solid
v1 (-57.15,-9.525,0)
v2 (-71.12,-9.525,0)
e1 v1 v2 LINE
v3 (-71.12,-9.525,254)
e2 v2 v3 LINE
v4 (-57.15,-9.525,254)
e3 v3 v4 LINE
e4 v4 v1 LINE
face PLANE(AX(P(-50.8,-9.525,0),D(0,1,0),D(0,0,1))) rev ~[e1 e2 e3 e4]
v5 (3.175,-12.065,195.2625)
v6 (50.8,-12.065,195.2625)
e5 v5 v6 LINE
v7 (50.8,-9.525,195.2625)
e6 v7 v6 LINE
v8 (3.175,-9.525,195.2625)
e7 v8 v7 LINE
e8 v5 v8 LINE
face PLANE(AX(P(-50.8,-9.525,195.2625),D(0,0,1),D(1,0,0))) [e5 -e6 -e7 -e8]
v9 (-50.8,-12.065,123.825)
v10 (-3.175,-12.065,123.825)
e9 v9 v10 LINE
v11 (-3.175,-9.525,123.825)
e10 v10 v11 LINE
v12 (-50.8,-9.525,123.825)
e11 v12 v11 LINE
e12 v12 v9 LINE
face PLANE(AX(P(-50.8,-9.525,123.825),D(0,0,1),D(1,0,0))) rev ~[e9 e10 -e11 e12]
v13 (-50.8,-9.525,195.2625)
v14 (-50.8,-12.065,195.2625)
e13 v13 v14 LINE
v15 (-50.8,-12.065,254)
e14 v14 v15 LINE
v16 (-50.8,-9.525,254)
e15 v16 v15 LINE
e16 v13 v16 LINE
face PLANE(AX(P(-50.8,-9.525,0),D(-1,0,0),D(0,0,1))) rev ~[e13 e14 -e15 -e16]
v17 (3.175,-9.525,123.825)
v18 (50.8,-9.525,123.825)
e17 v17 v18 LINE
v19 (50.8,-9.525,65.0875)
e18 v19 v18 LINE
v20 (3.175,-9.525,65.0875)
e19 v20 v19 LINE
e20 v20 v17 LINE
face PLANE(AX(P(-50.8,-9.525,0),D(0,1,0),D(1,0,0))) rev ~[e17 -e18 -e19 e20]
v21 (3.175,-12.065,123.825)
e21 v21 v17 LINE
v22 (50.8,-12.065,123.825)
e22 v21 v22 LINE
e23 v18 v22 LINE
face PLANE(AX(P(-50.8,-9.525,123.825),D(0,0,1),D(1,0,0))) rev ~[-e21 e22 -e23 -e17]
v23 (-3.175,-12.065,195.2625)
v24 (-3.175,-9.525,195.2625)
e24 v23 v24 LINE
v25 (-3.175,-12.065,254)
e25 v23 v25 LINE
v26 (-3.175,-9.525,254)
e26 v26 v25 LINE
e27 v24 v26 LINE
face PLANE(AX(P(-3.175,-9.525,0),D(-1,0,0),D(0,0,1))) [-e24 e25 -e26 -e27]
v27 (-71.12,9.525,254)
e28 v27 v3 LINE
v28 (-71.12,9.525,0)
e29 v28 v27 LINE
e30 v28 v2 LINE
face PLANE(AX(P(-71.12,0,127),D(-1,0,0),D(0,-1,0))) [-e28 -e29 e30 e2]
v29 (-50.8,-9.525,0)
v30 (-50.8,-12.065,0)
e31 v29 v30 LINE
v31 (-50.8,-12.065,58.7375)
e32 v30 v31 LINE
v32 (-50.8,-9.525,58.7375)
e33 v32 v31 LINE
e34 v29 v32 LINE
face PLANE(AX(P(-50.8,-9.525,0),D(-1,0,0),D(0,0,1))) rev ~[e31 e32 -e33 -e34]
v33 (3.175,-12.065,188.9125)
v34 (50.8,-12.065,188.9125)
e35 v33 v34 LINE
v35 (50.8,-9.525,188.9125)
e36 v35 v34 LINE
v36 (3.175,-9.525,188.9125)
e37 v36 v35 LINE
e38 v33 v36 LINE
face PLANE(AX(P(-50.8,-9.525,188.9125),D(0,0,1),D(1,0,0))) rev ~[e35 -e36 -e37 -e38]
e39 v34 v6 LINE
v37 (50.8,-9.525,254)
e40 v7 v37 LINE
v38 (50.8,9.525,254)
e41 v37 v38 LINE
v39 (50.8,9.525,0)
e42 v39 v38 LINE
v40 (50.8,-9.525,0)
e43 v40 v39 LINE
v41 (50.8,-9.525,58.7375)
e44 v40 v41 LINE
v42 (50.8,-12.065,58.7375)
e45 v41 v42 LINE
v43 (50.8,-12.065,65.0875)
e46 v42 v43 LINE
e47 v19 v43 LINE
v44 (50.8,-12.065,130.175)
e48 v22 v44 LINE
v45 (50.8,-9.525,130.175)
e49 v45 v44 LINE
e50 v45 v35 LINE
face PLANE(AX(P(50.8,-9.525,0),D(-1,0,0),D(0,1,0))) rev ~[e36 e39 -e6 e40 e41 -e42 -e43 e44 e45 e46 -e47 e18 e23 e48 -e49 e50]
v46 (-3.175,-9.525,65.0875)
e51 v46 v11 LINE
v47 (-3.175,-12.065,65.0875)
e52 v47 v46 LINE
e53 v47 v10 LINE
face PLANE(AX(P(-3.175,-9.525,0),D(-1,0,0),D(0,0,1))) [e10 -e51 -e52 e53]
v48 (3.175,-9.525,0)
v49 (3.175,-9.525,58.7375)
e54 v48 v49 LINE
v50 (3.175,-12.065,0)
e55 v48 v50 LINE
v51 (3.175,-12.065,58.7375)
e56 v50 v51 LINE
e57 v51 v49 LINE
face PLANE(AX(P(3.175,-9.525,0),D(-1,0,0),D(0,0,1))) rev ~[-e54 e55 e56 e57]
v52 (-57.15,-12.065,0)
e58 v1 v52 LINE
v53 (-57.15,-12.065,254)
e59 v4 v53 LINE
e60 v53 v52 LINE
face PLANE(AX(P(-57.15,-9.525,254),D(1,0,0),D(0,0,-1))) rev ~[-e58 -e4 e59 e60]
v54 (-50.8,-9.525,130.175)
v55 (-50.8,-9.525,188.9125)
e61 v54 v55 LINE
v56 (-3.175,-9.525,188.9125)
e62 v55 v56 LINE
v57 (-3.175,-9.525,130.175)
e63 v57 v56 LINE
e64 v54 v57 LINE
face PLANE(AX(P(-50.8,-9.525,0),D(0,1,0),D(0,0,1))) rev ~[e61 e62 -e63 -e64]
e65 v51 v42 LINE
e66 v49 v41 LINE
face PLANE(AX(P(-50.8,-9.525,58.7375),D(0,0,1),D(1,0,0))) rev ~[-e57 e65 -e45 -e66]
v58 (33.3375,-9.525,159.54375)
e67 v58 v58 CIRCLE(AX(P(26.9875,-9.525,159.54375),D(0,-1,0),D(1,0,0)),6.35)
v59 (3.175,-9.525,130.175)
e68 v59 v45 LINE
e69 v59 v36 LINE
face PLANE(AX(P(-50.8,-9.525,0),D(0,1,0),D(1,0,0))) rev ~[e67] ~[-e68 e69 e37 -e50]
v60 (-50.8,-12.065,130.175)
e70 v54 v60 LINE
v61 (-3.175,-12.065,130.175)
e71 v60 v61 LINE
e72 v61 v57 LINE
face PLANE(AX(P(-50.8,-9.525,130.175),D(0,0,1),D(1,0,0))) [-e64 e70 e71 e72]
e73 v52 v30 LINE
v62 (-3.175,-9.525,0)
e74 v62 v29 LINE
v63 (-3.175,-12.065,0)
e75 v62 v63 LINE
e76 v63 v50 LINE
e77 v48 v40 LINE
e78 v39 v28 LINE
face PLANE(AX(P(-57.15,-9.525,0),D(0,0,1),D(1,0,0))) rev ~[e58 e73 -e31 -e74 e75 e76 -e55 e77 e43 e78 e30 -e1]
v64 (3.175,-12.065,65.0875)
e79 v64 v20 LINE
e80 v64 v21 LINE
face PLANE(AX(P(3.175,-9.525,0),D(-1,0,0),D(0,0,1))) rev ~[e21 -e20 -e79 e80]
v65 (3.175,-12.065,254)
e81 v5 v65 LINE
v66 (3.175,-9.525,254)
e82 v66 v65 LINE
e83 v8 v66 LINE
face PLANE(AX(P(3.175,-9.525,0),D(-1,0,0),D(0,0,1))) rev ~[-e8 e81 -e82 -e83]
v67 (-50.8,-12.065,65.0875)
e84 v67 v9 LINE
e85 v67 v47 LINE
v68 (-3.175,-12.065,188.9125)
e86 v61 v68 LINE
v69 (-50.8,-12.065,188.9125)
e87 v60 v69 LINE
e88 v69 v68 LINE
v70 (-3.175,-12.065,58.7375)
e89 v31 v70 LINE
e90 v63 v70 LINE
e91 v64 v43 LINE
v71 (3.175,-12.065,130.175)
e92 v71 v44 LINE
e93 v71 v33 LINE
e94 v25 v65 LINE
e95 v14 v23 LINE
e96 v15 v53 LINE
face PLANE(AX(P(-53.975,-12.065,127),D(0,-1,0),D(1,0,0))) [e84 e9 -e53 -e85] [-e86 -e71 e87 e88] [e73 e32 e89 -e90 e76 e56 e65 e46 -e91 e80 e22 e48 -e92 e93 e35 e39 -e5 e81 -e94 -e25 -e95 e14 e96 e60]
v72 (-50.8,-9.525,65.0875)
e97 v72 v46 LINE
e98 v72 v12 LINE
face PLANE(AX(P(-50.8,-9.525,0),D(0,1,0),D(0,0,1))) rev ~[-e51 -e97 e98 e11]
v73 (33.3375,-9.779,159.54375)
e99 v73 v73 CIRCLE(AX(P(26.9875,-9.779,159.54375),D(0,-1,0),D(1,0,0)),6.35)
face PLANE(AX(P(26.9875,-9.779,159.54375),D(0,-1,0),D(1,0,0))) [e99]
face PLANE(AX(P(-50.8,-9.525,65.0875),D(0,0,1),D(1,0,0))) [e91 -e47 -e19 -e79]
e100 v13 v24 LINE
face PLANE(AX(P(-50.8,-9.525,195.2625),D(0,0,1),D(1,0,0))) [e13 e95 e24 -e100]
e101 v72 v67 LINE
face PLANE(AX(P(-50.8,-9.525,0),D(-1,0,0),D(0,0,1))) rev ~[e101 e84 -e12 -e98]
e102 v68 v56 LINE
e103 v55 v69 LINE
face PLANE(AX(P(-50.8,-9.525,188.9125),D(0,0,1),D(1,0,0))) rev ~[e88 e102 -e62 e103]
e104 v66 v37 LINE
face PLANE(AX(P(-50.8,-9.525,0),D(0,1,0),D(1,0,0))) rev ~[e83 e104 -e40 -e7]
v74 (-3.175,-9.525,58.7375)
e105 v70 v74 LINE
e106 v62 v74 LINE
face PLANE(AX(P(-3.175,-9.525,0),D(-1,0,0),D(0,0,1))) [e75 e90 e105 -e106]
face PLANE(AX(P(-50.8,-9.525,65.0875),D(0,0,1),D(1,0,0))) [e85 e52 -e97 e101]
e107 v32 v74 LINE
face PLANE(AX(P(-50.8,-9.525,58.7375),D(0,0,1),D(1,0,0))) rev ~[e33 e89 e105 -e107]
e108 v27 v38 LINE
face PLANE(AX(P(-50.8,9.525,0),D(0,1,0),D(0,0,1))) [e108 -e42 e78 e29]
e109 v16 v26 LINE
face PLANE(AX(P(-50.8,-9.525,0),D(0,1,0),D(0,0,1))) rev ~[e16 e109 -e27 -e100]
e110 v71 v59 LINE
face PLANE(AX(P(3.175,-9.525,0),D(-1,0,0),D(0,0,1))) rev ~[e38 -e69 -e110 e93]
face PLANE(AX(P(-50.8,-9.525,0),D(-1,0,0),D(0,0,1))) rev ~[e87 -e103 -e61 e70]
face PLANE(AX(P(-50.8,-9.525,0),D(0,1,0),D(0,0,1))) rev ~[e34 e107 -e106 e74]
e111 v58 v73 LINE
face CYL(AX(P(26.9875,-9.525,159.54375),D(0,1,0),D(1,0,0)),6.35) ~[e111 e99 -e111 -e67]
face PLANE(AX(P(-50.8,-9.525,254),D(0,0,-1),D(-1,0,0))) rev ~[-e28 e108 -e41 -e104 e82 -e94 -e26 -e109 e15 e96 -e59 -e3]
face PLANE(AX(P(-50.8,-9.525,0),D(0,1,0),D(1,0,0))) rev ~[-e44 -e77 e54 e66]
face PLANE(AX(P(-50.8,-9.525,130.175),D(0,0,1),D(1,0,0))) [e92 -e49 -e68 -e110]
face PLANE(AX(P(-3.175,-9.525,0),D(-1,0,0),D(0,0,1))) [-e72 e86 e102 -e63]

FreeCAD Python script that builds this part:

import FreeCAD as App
import Part
import Sketcher
from FreeCAD import Vector
Q = App.Units.Quantity

doc = App.newDocument("Part")
params = doc.addObject("Spreadsheet::Sheet", "Params")
for row, (alias, value) in enumerate([
    ("sketch1_width", "4 in"),
    ("sketch1_height", "0.75 in"),
    ("pad1_length", "10 in"),
    ("sketch2_height", "10 in"),
    ("sketch2_width", "0.25 in"),
    ("pad2_length", "0.1 in"),
    ("sketch3_width", "4 in"),
    ("sketch3_height", "0.25 in"),
    ("pad3_length", "0.1 in"),
    ("sketch4_width", "4 in"),
    ("sketch4_height", "0.25 in"),
    ("pad4_length", "0.1 in"),
    ("sketch5_width", "4 in"),
    ("sketch5_height", "0.25 in"),
    ("pad5_length", "0.1 in"),
    ("sketch6_diameter", "0.5 in"),
    ("pad6_length", "0.01 in"),
    ("sketch7_height", "10 in"),
    ("sketch7_width", "0.75 in"),
    ("pad7_length", "0.8 in"),
    ("sketch8_height", "10 in"),
    ("sketch8_width", "0.25 in"),
    ("pad8_length", "0.1 in"),
], start=1):
    params.set(f"A{row}", alias)
    params.set(f"B{row}", "=" + value)
    params.setAlias(f"B{row}", alias)

body = doc.addObject("PartDesign::Body", "Body")

# Sketch on XY plane
sketch1 = doc.addObject("Sketcher::SketchObject", "Sketch")
body.addObject(sketch1)
sketch1.AttachmentSupport = (doc.XY_Plane, [""])
sketch1.MapMode = "FlatFace"
sketch1.addGeometry([
    Part.LineSegment(Vector(-51, 10, 0), Vector(-51, -10, 0)),
    Part.LineSegment(Vector(-51, -10, 0), Vector(51, -10, 0)),
    Part.LineSegment(Vector(51, -10, 0), Vector(51, 10, 0)),
    Part.LineSegment(Vector(51, 10, 0), Vector(-51, 10, 0)),
], False)
sketch1.addConstraint([
    Sketcher.Constraint("Coincident", 0, 2, 1, 1),
    Sketcher.Constraint("Coincident", 1, 2, 2, 1),
    Sketcher.Constraint("Coincident", 2, 2, 3, 1),
    Sketcher.Constraint("Coincident", 3, 2, 0, 1),
    Sketcher.Constraint("Vertical", 0),
    Sketcher.Constraint("Horizontal", 1),
    Sketcher.Constraint("Vertical", 2),
    Sketcher.Constraint("Horizontal", 3),
    Sketcher.Constraint("Symmetric", 0, 2, 2, 2, -1, 1),
    Sketcher.Constraint("DistanceX", 1, 1, 1, 2, Q("4 in")),
    Sketcher.Constraint("DistanceY", 0, 2, 0, 1, Q("0.75 in")),
])
sketch1.setExpression("Constraints[9]", "Params.sketch1_width")
sketch1.setExpression("Constraints[10]", "Params.sketch1_height")
pad1 = doc.addObject("PartDesign::Pad", "Pad")
body.addObject(pad1)
pad1.Profile = sketch1
pad1.setExpression("Length", "Params.pad1_length")

# Sketch on XZ plane
sketch2 = doc.addObject("Sketcher::SketchObject", "Sketch001")
body.addObject(sketch2)
sketch2.AttachmentSupport = (doc.XZ_Plane, [""])
sketch2.MapMode = "FlatFace"
sketch2.AttachmentOffset = App.Placement(Vector(0, 0, 0.375 * 25.4), App.Rotation())
sketch2.addGeometry([
    Part.LineSegment(Vector(-3, 254, 0), Vector(-3, 0, 0)),
    Part.LineSegment(Vector(-3, 0, 0), Vector(3, 0, 0)),
    Part.LineSegment(Vector(3, 0, 0), Vector(3, 254, 0)),
    Part.LineSegment(Vector(3, 254, 0), Vector(-3, 254, 0)),
], False)
sketch2.addConstraint([
    Sketcher.Constraint("Coincident", 0, 2, 1, 1),
    Sketcher.Constraint("Coincident", 1, 2, 2, 1),
    Sketcher.Constraint("Coincident", 2, 2, 3, 1),
    Sketcher.Constraint("Coincident", 3, 2, 0, 1),
    Sketcher.Constraint("Vertical", 0),
    Sketcher.Constraint("Horizontal", 1),
    Sketcher.Constraint("Vertical", 2),
    Sketcher.Constraint("Horizontal", 3),
    Sketcher.Constraint("Symmetric", 0, 2, 1, 2, -1, 1),
    Sketcher.Constraint("DistanceY", 0, 2, 0, 1, Q("10 in")),
    Sketcher.Constraint("DistanceX", 1, 1, 1, 2, Q("0.25 in")),
])
sketch2.setExpression("Constraints[9]", "Params.sketch2_height")
sketch2.setExpression("Constraints[10]", "Params.sketch2_width")
pad2 = doc.addObject("PartDesign::Pad", "Pad001")
body.addObject(pad2)
pad2.Profile = sketch2
pad2.setExpression("Length", "Params.pad2_length")

# Sketch on XZ plane
sketch3 = doc.addObject("Sketcher::SketchObject", "Sketch002")
body.addObject(sketch3)
sketch3.AttachmentSupport = (doc.XZ_Plane, [""])
sketch3.MapMode = "FlatFace"
sketch3.AttachmentOffset = App.Placement(Vector(0, 0, 0.375 * 25.4), App.Rotation())
sketch3.addGeometry([
    Part.LineSegment(Vector(-51, 130, 0), Vector(-51, 124, 0)),
    Part.LineSegment(Vector(-51, 124, 0), Vector(51, 124, 0)),
    Part.LineSegment(Vector(51, 124, 0), Vector(51, 130, 0)),
    Part.LineSegment(Vector(51, 130, 0), Vector(-51, 130, 0)),
], False)
sketch3.addConstraint([
    Sketcher.Constraint("Coincident", 0, 2, 1, 1),
    Sketcher.Constraint("Coincident", 1, 2, 2, 1),
    Sketcher.Constraint("Coincident", 2, 2, 3, 1),
    Sketcher.Constraint("Coincident", 3, 2, 0, 1),
    Sketcher.Constraint("Vertical", 0),
    Sketcher.Constraint("Horizontal", 1),
    Sketcher.Constraint("Vertical", 2),
    Sketcher.Constraint("Horizontal", 3),
    Sketcher.Constraint("DistanceX", 1, 1, 1, 2, Q("4 in")),
    Sketcher.Constraint("DistanceX", 0, 2, -1, 1, Q("2 in")),
    Sketcher.Constraint("DistanceY", 0, 2, 0, 1, Q("0.25 in")),
    Sketcher.Constraint("DistanceY", -1, 1, 0, 2, Q("4.875 in")),
])
sketch3.setExpression("Constraints[8]", "Params.sketch3_width")
sketch3.setExpression("Constraints[10]", "Params.sketch3_height")
pad3 = doc.addObject("PartDesign::Pad", "Pad002")
body.addObject(pad3)
pad3.Profile = sketch3
pad3.setExpression("Length", "Params.pad3_length")

# Sketch on XZ plane
sketch4 = doc.addObject("Sketcher::SketchObject", "Sketch003")
body.addObject(sketch4)
sketch4.AttachmentSupport = (doc.XZ_Plane, [""])
sketch4.MapMode = "FlatFace"
sketch4.AttachmentOffset = App.Placement(Vector(0, 0, 0.375 * 25.4), App.Rotation())
sketch4.addGeometry([
    Part.LineSegment(Vector(-51, 195, 0), Vector(-51, 189, 0)),
    Part.LineSegment(Vector(-51, 189, 0), Vector(51, 189, 0)),
    Part.LineSegment(Vector(51, 189, 0), Vector(51, 195, 0)),
    Part.LineSegment(Vector(51, 195, 0), Vector(-51, 195, 0)),
], False)
sketch4.addConstraint([
    Sketcher.Constraint("Coincident", 0, 2, 1, 1),
    Sketcher.Constraint("Coincident", 1, 2, 2, 1),
    Sketcher.Constraint("Coincident", 2, 2, 3, 1),
    Sketcher.Constraint("Coincident", 3, 2, 0, 1),
    Sketcher.Constraint("Vertical", 0),
    Sketcher.Constraint("Horizontal", 1),
    Sketcher.Constraint("Vertical", 2),
    Sketcher.Constraint("Horizontal", 3),
    Sketcher.Constraint("DistanceX", 1, 1, 1, 2, Q("4 in")),
    Sketcher.Constraint("DistanceX", 0, 2, -1, 1, Q("2 in")),
    Sketcher.Constraint("DistanceY", 0, 2, 0, 1, Q("0.25 in")),
    Sketcher.Constraint("DistanceY", -1, 1, 0, 2, Q("7.4375 in")),
])
sketch4.setExpression("Constraints[8]", "Params.sketch4_width")
sketch4.setExpression("Constraints[10]", "Params.sketch4_height")
pad4 = doc.addObject("PartDesign::Pad", "Pad003")
body.addObject(pad4)
pad4.Profile = sketch4
pad4.setExpression("Length", "Params.pad4_length")

# Sketch on XZ plane
sketch5 = doc.addObject("Sketcher::SketchObject", "Sketch004")
body.addObject(sketch5)
sketch5.AttachmentSupport = (doc.XZ_Plane, [""])
sketch5.MapMode = "FlatFace"
sketch5.AttachmentOffset = App.Placement(Vector(0, 0, 0.375 * 25.4), App.Rotation())
sketch5.addGeometry([
    Part.LineSegment(Vector(-51, 65, 0), Vector(-51, 59, 0)),
    Part.LineSegment(Vector(-51, 59, 0), Vector(51, 59, 0)),
    Part.LineSegment(Vector(51, 59, 0), Vector(51, 65, 0)),
    Part.LineSegment(Vector(51, 65, 0), Vector(-51, 65, 0)),
], False)
sketch5.addConstraint([
    Sketcher.Constraint("Coincident", 0, 2, 1, 1),
    Sketcher.Constraint("Coincident", 1, 2, 2, 1),
    Sketcher.Constraint("Coincident", 2, 2, 3, 1),
    Sketcher.Constraint("Coincident", 3, 2, 0, 1),
    Sketcher.Constraint("Vertical", 0),
    Sketcher.Constraint("Horizontal", 1),
    Sketcher.Constraint("Vertical", 2),
    Sketcher.Constraint("Horizontal", 3),
    Sketcher.Constraint("DistanceX", 1, 1, 1, 2, Q("4 in")),
    Sketcher.Constraint("DistanceX", 0, 2, -1, 1, Q("2 in")),
    Sketcher.Constraint("DistanceY", 0, 2, 0, 1, Q("0.25 in")),
    Sketcher.Constraint("DistanceY", -1, 1, 0, 2, Q("2.3125 in")),
])
sketch5.setExpression("Constraints[8]", "Params.sketch5_width")
sketch5.setExpression("Constraints[10]", "Params.sketch5_height")
pad5 = doc.addObject("PartDesign::Pad", "Pad004")
body.addObject(pad5)
pad5.Profile = sketch5
pad5.setExpression("Length", "Params.pad5_length")

# Sketch on XZ plane
sketch6 = doc.addObject("Sketcher::SketchObject", "Sketch005")
body.addObject(sketch6)
sketch6.AttachmentSupport = (doc.XZ_Plane, [""])
sketch6.MapMode = "FlatFace"
sketch6.AttachmentOffset = App.Placement(Vector(0, 0, 0.375 * 25.4), App.Rotation())
sketch6.addGeometry(Part.Circle(Vector(27, 160, 0), Vector(0, 0, 1), 6), False)
sketch6.addConstraint([
    Sketcher.Constraint("Diameter", 0, Q("0.5 in")),
    Sketcher.Constraint("DistanceX", -1, 1, 0, 3, Q("1.0625 in")),
    Sketcher.Constraint("DistanceY", -1, 1, 0, 3, Q("6.28125 in")),
])
sketch6.setExpression("Constraints[0]", "Params.sketch6_diameter")
pad6 = doc.addObject("PartDesign::Pad", "Pad005")
body.addObject(pad6)
pad6.Profile = sketch6
pad6.setExpression("Length", "Params.pad6_length")

# Sketch on YZ plane
sketch7 = doc.addObject("Sketcher::SketchObject", "Sketch006")
body.addObject(sketch7)
sketch7.AttachmentSupport = (doc.YZ_Plane, [""])
sketch7.MapMode = "FlatFace"
sketch7.AttachmentOffset = App.Placement(Vector(0, 0, -2 * 25.4), App.Rotation())
sketch7.addGeometry([
    Part.LineSegment(Vector(10, 254, 0), Vector(10, 0, 0)),
    Part.LineSegment(Vector(10, 0, 0), Vector(-10, 0, 0)),
    Part.LineSegment(Vector(-10, 0, 0), Vector(-10, 254, 0)),
    Part.LineSegment(Vector(-10, 254, 0), Vector(10, 254, 0)),
], False)
sketch7.addConstraint([
    Sketcher.Constraint("Coincident", 0, 2, 1, 1),
    Sketcher.Constraint("Coincident", 1, 2, 2, 1),
    Sketcher.Constraint("Coincident", 2, 2, 3, 1),
    Sketcher.Constraint("Coincident", 3, 2, 0, 1),
    Sketcher.Constraint("Vertical", 0),
    Sketcher.Constraint("Horizontal", 1),
    Sketcher.Constraint("Vertical", 2),
    Sketcher.Constraint("Horizontal", 3),
    Sketcher.Constraint("Symmetric", 0, 2, 1, 2, -1, 1),
    Sketcher.Constraint("DistanceY", 0, 2, 0, 1, Q("10 in")),
    Sketcher.Constraint("DistanceX", 1, 2, 1, 1, Q("0.75 in")),
])
sketch7.setExpression("Constraints[9]", "Params.sketch7_height")
sketch7.setExpression("Constraints[10]", "Params.sketch7_width")
pad7 = doc.addObject("PartDesign::Pad", "Pad006")
body.addObject(pad7)
pad7.Profile = sketch7
pad7.setExpression("Length", "Params.pad7_length")
pad7.Reversed = True

# Sketch on XZ plane
sketch8 = doc.addObject("Sketcher::SketchObject", "Sketch007")
body.addObject(sketch8)
sketch8.AttachmentSupport = (doc.XZ_Plane, [""])
sketch8.MapMode = "FlatFace"
sketch8.AttachmentOffset = App.Placement(Vector(0, 0, 0.375 * 25.4), App.Rotation())
sketch8.addGeometry([
    Part.LineSegment(Vector(-51, 254, 0), Vector(-57, 254, 0)),
    Part.LineSegment(Vector(-57, 254, 0), Vector(-57, 0, 0)),
    Part.LineSegment(Vector(-57, 0, 0), Vector(-51, 0, 0)),
    Part.LineSegment(Vector(-51, 0, 0), Vector(-51, 254, 0)),
], False)
sketch8.addConstraint([
    Sketcher.Constraint("Coincident", 0, 2, 1, 1),
    Sketcher.Constraint("Coincident", 1, 2, 2, 1),
    Sketcher.Constraint("Coincident", 2, 2, 3, 1),
    Sketcher.Constraint("Coincident", 3, 2, 0, 1),
    Sketcher.Constraint("Horizontal", 0),
    Sketcher.Constraint("Vertical", 1),
    Sketcher.Constraint("Horizontal", 2),
    Sketcher.Constraint("Vertical", 3),
    Sketcher.Constraint("PointOnObject", 1, 2, -1),
    Sketcher.Constraint("DistanceY", 1, 2, 1, 1, Q("10 in")),
    Sketcher.Constraint("DistanceX", 2, 2, -1, 1, Q("2 in")),
    Sketcher.Constraint("DistanceX", 0, 2, 0, 1, Q("0.25 in")),
])
sketch8.setExpression("Constraints[9]", "Params.sketch8_height")
sketch8.setExpression("Constraints[11]", "Params.sketch8_width")
pad8 = doc.addObject("PartDesign::Pad", "Pad007")
body.addObject(pad8)
pad8.Profile = sketch8
pad8.setExpression("Length", "Params.pad8_length")

doc.recompute()
